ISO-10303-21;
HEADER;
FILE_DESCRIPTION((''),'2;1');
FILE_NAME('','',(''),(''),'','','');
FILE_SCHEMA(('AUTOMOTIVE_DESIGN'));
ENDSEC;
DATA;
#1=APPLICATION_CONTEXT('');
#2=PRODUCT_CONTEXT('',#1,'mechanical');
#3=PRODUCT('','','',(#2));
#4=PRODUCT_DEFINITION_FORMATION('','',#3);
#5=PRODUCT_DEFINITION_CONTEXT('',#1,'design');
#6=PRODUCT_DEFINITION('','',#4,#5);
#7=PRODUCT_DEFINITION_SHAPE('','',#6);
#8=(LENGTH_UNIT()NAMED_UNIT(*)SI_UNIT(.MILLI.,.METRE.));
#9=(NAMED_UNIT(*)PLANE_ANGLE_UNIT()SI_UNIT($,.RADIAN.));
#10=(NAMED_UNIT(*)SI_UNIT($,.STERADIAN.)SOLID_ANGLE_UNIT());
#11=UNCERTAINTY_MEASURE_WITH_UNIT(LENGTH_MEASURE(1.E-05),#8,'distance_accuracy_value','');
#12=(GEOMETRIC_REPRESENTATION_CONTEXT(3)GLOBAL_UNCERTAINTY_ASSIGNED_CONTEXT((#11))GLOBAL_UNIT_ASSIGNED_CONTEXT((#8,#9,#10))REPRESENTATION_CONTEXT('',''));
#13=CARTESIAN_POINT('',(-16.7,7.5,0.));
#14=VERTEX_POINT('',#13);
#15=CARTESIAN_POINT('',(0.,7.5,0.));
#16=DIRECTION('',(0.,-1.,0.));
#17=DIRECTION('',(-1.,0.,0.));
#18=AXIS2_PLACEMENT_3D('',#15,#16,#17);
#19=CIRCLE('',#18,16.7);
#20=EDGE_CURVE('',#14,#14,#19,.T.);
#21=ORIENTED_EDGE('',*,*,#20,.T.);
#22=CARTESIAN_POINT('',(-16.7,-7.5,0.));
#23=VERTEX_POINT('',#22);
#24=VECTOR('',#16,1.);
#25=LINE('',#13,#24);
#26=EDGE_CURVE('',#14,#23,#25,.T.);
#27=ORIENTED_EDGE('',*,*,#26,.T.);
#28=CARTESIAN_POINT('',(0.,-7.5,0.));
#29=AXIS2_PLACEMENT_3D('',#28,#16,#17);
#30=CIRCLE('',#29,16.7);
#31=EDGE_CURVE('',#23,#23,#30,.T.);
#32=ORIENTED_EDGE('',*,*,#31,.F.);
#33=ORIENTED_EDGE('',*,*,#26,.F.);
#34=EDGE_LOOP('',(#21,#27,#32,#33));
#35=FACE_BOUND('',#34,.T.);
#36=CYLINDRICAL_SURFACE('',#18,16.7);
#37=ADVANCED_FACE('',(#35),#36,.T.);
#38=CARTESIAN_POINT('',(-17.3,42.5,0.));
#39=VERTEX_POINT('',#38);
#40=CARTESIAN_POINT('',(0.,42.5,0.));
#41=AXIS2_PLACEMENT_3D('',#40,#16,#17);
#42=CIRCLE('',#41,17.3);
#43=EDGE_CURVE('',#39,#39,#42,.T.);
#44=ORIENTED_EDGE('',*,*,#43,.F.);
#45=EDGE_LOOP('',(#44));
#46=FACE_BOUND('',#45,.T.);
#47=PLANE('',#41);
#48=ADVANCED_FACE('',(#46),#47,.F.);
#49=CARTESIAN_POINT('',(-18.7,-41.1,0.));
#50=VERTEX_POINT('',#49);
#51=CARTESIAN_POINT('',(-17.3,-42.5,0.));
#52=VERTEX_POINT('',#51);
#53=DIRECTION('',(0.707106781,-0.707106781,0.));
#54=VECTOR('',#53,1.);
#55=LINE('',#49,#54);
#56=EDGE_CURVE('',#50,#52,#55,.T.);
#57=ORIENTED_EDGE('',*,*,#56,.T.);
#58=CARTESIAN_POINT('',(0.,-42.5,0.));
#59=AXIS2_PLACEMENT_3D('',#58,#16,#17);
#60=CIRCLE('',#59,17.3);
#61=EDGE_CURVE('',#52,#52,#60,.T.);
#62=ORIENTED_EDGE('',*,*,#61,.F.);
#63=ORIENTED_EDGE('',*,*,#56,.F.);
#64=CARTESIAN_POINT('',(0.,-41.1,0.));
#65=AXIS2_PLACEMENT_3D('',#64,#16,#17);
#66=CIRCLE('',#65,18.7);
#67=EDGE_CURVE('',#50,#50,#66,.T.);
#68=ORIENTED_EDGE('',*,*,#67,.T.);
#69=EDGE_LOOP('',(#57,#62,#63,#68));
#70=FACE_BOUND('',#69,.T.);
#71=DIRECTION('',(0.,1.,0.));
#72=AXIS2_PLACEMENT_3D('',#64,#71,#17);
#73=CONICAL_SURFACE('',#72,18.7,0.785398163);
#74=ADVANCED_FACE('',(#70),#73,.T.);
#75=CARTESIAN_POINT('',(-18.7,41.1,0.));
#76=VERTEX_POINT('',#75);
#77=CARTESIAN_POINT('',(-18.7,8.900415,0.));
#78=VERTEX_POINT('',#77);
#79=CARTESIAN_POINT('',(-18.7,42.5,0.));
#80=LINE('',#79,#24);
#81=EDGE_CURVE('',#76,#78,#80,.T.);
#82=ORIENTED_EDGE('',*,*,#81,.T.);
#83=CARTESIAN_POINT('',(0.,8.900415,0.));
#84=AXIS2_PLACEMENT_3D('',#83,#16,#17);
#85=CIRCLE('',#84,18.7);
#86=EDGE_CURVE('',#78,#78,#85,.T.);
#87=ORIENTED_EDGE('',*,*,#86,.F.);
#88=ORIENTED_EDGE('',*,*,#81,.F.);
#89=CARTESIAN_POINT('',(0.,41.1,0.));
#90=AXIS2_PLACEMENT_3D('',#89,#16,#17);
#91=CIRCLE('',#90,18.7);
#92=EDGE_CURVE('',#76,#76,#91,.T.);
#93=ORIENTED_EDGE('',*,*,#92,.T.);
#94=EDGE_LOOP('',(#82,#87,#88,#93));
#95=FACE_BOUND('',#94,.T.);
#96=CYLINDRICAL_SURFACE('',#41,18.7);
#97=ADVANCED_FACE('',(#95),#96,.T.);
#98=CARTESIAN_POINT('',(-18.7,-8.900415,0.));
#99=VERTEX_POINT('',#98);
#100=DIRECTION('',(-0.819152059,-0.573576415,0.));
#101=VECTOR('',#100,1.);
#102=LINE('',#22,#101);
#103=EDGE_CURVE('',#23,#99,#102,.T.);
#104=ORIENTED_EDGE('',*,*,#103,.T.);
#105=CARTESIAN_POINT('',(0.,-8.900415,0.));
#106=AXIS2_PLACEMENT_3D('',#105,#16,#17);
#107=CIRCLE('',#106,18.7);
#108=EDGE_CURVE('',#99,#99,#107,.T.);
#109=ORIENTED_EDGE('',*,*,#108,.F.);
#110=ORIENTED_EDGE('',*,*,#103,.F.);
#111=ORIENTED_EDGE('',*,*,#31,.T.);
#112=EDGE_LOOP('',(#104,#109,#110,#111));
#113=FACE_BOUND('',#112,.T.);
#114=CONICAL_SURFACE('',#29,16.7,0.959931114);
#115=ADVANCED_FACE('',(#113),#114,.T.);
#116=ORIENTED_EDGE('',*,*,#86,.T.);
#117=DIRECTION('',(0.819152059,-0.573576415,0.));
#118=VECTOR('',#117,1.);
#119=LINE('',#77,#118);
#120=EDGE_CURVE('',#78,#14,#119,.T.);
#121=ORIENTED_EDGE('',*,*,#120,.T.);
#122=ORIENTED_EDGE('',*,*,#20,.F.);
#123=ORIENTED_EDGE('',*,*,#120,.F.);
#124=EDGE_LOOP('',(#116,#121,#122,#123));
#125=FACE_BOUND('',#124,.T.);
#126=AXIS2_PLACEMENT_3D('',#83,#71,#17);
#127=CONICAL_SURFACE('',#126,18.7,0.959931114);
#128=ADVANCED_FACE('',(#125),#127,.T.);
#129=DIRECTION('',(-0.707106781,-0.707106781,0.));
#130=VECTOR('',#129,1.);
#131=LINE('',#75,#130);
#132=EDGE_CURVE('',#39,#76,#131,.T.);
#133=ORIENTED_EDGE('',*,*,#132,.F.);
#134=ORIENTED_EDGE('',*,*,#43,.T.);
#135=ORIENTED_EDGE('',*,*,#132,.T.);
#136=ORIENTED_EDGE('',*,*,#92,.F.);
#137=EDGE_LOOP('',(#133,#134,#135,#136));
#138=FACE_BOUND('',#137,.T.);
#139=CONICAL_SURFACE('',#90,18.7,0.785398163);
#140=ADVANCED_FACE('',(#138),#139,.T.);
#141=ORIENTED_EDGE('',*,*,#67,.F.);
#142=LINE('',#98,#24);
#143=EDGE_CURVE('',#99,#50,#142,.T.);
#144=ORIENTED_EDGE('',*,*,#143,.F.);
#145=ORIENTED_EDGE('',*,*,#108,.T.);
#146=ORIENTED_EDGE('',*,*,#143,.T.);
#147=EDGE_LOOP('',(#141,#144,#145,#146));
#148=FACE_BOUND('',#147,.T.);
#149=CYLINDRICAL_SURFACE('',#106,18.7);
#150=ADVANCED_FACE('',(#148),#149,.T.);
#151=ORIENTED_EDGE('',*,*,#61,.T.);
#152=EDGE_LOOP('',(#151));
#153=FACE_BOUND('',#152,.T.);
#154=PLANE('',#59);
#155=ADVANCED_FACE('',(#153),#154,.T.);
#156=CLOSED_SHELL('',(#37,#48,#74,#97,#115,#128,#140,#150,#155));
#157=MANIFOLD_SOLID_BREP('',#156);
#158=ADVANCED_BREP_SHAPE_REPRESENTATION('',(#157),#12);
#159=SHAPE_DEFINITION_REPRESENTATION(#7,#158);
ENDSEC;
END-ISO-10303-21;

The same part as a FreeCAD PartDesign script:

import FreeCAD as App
import Part
import Sketcher
Q = App.Units.Quantity


def edges_at(feature, points):
    """Names of the edges that pass closest to the given points."""
    edges = feature.Shape.Edges
    near = lambda p: min(range(len(edges)), key=lambda i: edges[i].distToShape(Part.Vertex(*p))[0])
    return sorted({f"Edge{near(p) + 1}" for p in points})


def add_polygon(sketch, points):
    """Adds a closed chain of lines whose ends are joined by coincident constraints."""
    first, n = sketch.GeometryCount, len(points)
    for a, b in zip(points, points[1:] + points[:1]):
        sketch.addGeometry(Part.LineSegment(App.Vector(*a, 0), App.Vector(*b, 0)), False)
    for i in range(n):
        sketch.addConstraint(Sketcher.Constraint("Coincident", first + i, 2, first + (i + 1) % n, 1))

doc = App.newDocument("Part")
body = doc.addObject("PartDesign::Body", "Body")

# Sketch on XY plane
sketch1 = doc.addObject("Sketcher::SketchObject", "Sketch")
body.addObject(sketch1)
sketch1.AttachmentSupport = (doc.XY_Plane, [""])
sketch1.MapMode = "FlatFace"
add_polygon(sketch1, [(0, -42.5), (0, 42.5), (-18.7, 42.5), (-18.7, 8.9), (-16.7, 7.5), (-16.7, -7.5), (-18.7, -8.9), (-18.7, -42.5)])  # lines 0-7
sketch1.addConstraint([
    Sketcher.Constraint("Vertical", 0),
    Sketcher.Constraint("Horizontal", 1),
    Sketcher.Constraint("Vertical", 2),
    Sketcher.Constraint("Vertical", 4),
    Sketcher.Constraint("Vertical", 6),
    Sketcher.Constraint("Horizontal", 7),
    Sketcher.Constraint("Symmetric", 0, 2, 7, 2, -1, 1),
    Sketcher.Constraint("Symmetric", 2, 2, 5, 2, -1),
    Sketcher.Constraint("Equal", 3, 5),
    Sketcher.Constraint("DistanceY", 0, 1, 0, 2, 85.0),
    Sketcher.Constraint("DistanceY", 4, 2, 4, 1, 15.0),
    Sketcher.Constraint("Angle", 3, Q("-34.999999 deg")),
    Sketcher.Constraint("DistanceX", 1, 2, 1, 1, 18.7),
    Sketcher.Constraint("DistanceX", 2, 2, 3, 2, 2.0),
])
revolution = doc.addObject("PartDesign::Revolution", "Revolution")
body.addObject(revolution)
revolution.Profile = sketch1
revolution.ReferenceAxis = (sketch1, ["V_Axis"])
revolution.Angle = 360
doc.recompute()

chamfer = doc.addObject("PartDesign::Chamfer", "Chamfer")
body.addObject(chamfer)
chamfer.Base = (revolution, edges_at(revolution, [(18.7, 42.5, 0), (18.7, -42.5, 0)]))
chamfer.Size = 1.4

doc.recompute()
